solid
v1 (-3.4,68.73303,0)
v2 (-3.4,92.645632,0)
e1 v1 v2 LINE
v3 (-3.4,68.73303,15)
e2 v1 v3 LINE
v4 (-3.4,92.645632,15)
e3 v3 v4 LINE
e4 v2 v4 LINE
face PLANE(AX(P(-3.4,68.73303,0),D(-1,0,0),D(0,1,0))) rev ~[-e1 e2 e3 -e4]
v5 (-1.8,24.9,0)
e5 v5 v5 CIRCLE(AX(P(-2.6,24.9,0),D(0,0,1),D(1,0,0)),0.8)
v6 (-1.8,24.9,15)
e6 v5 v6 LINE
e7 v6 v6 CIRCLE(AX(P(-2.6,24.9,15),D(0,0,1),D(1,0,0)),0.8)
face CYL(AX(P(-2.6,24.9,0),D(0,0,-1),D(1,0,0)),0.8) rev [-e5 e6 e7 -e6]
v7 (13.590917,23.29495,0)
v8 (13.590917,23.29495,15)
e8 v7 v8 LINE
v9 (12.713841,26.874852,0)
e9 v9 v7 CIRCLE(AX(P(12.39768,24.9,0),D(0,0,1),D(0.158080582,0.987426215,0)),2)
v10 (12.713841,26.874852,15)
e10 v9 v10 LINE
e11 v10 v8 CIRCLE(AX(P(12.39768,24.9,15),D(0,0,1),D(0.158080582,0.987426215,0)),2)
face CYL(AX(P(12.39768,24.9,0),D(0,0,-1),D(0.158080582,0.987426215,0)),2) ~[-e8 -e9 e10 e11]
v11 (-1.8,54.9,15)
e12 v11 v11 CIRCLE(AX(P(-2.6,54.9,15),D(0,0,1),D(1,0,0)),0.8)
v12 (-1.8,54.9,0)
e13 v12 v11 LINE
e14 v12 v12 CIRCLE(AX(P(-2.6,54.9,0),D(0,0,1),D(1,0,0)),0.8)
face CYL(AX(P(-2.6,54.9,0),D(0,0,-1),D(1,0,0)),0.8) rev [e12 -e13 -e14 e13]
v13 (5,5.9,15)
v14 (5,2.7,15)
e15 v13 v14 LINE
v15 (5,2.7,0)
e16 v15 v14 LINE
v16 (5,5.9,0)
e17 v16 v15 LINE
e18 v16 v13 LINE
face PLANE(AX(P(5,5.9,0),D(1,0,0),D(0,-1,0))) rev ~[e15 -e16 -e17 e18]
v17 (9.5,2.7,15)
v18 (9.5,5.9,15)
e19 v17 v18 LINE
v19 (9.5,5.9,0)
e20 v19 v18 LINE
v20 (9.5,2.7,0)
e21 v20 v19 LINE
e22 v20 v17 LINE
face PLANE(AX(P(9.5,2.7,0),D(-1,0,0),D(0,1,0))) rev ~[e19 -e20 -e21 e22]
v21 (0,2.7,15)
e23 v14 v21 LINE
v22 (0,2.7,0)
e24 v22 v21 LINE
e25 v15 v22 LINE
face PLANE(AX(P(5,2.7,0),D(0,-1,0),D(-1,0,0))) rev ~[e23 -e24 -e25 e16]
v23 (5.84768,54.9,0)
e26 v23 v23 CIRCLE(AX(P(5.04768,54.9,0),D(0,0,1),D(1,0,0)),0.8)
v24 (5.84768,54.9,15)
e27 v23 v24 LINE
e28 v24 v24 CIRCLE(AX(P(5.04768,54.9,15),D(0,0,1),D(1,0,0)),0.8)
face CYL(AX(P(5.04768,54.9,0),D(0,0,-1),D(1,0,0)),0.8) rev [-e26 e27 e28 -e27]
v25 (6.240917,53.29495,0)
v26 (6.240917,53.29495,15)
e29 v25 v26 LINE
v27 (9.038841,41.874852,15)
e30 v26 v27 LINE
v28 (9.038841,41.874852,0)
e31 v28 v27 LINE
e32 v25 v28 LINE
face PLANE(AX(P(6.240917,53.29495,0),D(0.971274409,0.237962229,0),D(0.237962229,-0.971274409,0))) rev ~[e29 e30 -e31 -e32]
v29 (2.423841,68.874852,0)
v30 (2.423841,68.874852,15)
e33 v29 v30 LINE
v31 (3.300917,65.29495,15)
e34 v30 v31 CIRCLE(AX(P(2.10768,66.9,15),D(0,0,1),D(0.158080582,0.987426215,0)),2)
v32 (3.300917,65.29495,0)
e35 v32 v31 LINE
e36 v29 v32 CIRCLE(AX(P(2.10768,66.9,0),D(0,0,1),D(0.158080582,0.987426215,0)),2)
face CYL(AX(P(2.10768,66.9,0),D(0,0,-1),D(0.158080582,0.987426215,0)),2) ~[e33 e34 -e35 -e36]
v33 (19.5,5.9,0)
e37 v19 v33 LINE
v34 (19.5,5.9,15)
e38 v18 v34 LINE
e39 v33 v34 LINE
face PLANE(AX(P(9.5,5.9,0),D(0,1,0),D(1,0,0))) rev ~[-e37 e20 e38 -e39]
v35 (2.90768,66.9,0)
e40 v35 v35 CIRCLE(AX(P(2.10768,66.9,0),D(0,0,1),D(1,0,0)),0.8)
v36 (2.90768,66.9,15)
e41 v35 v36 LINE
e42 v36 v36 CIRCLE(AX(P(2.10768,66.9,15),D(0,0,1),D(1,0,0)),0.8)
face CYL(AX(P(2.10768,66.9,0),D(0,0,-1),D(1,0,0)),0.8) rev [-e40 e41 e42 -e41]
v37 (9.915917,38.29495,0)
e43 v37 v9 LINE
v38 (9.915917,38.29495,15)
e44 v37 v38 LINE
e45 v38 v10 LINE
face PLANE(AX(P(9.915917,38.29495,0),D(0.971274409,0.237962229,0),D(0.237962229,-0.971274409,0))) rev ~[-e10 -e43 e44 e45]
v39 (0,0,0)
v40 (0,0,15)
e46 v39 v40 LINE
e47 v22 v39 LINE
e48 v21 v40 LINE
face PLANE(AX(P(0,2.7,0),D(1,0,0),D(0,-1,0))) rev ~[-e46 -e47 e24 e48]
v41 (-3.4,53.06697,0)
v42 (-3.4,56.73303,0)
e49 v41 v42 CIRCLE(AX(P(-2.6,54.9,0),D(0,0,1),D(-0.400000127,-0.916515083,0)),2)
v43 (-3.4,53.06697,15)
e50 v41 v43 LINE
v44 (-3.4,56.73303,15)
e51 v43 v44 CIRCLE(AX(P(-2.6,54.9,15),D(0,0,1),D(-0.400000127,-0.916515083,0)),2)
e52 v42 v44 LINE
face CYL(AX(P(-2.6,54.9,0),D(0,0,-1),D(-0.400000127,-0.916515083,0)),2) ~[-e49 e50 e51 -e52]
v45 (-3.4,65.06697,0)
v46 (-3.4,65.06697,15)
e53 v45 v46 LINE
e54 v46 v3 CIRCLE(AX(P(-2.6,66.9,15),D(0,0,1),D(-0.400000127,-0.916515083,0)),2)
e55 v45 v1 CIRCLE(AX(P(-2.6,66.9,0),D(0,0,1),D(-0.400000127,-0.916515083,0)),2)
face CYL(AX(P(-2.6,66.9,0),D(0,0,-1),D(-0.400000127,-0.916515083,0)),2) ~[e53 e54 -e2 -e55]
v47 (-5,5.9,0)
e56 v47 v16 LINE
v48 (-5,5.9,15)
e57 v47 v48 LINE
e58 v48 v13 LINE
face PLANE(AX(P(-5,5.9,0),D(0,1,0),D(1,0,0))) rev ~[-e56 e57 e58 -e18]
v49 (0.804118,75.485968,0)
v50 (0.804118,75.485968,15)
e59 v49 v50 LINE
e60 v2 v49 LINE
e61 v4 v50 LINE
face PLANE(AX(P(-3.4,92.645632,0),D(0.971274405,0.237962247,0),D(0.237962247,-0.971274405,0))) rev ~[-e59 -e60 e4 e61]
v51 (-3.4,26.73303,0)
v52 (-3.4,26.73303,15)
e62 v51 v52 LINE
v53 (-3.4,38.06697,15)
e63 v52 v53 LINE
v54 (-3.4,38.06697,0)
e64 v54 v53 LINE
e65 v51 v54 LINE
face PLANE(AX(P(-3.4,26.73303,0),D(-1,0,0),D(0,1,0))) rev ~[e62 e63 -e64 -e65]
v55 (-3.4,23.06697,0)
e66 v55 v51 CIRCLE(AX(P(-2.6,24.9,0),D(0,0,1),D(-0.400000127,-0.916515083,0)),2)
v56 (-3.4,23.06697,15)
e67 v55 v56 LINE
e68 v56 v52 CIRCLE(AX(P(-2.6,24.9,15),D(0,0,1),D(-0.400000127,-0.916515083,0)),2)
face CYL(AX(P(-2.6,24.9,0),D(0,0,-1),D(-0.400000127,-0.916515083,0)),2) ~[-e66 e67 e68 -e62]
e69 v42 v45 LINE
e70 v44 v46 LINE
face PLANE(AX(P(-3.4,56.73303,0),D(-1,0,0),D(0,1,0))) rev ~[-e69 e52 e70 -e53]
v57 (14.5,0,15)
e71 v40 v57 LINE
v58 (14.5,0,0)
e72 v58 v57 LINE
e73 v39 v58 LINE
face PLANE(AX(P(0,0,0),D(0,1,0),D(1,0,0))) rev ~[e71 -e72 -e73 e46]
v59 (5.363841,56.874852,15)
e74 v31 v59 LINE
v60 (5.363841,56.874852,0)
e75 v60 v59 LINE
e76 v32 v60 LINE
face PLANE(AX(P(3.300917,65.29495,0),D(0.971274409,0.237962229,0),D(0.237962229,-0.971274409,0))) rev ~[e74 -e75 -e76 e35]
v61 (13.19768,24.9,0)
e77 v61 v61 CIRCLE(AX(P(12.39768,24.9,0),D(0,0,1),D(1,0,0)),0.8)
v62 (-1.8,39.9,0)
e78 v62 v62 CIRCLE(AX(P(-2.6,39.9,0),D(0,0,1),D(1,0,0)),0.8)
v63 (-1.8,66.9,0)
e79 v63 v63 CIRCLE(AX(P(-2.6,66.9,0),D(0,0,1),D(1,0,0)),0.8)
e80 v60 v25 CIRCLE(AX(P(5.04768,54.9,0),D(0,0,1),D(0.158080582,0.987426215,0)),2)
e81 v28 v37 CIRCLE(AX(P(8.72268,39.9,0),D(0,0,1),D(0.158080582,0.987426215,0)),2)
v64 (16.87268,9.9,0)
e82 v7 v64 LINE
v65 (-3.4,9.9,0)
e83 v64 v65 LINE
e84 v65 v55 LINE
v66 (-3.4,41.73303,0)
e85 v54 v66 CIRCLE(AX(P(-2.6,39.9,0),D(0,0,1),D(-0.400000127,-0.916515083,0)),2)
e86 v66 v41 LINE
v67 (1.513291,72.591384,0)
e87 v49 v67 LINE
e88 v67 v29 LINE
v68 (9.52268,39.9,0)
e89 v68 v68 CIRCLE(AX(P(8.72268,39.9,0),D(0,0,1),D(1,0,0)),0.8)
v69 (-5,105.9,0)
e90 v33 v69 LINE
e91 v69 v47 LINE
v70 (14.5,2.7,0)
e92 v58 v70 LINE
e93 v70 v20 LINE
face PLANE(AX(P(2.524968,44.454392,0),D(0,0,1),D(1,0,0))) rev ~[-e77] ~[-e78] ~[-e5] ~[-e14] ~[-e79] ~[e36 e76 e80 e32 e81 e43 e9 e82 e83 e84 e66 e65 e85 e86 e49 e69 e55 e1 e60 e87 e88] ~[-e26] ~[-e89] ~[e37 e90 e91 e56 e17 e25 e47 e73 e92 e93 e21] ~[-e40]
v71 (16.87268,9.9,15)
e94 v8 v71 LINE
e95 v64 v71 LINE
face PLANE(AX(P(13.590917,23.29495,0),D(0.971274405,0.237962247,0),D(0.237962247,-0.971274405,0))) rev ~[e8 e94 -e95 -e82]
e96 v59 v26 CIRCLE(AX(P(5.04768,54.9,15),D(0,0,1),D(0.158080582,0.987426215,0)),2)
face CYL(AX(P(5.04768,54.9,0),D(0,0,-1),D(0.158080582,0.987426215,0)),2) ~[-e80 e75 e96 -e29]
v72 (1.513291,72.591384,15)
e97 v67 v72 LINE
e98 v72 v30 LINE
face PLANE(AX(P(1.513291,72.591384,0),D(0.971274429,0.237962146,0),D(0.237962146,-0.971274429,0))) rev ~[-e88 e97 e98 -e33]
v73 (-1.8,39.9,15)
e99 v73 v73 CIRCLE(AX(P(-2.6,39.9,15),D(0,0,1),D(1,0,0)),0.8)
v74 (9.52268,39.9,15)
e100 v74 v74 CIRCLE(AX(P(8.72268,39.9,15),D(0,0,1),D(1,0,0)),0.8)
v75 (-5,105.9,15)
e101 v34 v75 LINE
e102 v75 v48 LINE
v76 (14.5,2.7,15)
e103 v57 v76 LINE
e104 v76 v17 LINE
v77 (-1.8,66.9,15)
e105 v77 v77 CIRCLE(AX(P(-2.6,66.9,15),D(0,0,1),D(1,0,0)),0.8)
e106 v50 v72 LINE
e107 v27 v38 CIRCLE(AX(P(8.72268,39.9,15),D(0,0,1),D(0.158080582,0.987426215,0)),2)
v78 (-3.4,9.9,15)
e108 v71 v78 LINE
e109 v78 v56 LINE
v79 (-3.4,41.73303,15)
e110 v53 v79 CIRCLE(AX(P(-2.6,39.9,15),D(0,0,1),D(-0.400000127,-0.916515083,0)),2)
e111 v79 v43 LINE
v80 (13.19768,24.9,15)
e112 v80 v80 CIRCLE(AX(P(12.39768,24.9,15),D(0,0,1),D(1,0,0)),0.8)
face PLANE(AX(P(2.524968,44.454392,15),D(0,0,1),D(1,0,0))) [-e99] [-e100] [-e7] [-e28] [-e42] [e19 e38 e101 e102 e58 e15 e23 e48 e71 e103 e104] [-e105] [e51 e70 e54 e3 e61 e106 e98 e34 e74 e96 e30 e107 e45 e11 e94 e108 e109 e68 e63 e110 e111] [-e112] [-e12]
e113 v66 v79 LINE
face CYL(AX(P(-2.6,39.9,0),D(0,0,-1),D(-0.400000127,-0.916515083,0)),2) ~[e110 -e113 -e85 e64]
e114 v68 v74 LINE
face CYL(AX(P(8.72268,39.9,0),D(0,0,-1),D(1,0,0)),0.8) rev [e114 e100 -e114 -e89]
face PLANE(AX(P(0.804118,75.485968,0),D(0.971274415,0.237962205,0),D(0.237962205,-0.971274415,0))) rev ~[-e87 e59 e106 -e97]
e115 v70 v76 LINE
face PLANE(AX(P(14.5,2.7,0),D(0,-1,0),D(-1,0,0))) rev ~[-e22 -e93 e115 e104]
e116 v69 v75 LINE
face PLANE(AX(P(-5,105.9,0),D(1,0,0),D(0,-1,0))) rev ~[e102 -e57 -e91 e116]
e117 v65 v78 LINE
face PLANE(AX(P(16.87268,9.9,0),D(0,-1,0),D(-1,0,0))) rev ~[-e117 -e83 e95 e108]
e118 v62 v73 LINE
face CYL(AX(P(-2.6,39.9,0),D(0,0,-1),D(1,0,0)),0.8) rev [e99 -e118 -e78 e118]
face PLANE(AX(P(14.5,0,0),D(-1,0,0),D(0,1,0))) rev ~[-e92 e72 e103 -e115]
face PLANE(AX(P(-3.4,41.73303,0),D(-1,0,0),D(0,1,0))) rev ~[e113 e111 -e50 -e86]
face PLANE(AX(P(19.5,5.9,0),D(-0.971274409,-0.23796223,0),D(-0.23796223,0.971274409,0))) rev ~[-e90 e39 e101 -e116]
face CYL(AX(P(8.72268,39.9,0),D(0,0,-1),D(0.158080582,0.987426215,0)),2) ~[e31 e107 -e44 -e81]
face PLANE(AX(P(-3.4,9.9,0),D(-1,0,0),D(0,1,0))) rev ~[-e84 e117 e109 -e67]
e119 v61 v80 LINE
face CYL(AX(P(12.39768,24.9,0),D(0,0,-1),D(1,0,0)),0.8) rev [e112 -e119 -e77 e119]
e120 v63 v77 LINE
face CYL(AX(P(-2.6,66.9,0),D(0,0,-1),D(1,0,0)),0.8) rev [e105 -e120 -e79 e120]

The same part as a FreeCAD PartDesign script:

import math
import FreeCAD as App
import Part
import Sketcher
from FreeCAD import Vector


def add_polygon(sketch, points):
    """Adds a closed chain of lines whose ends are joined by coincident constraints."""
    first, n = sketch.GeometryCount, len(points)
    for a, b in zip(points, points[1:] + points[:1]):
        sketch.addGeometry(Part.LineSegment(App.Vector(*a, 0), App.Vector(*b, 0)), False)
    for i in range(n):
        sketch.addConstraint(Sketcher.Constraint("Coincident", first + i, 2, first + (i + 1) % n, 1))

doc = App.newDocument("Part")
body = doc.addObject("PartDesign::Body", "Body")

# Sketch on XY plane
sketch1 = body.newObject("Sketcher::SketchObject", "Sketch")
sketch1.AttachmentSupport = (doc.getObject("XY_Plane"), [""])
sketch1.MapMode = "FlatFace"
add_polygon(sketch1, [(0, 2.7), (0, 0), (14.5, 0), (14.5, 2.7), (9.5, 2.7), (9.5, 5.9), (19.5, 5.9), (-5, 105.9), (-5, 5.9), (5, 5.9), (5, 2.7)])  # lines 0-10
sketch1.addGeometry(Part.Circle(Vector(-2.6, 24.9, 0), Vector(0, 0, 1), 0.8), False)  # 11
sketch1.addGeometry(Part.Circle(Vector(-2.6, 39.9, 0), Vector(0, 0, 1), 0.8), False)  # 12
sketch1.addGeometry(Part.Circle(Vector(12.4, 24.9, 0), Vector(0, 0, 1), 0.8), False)  # 13
sketch1.addGeometry(Part.Circle(Vector(8.7, 39.9, 0), Vector(0, 0, 1), 0.8), False)  # 14
sketch1.addGeometry(Part.LineSegment(Vector(13.6, 23.3, 0), Vector(16.9, 9.9, 0)), False)  # 15
sketch1.addGeometry(Part.LineSegment(Vector(16.9, 9.9, 0), Vector(-3.4, 9.9, 0)), False)  # 16
sketch1.addGeometry(Part.LineSegment(Vector(-3.4, 9.9, 0), Vector(-3.4, 23.1, 0)), False)  # 17
sketch1.addGeometry(Part.ArcOfCircle(Part.Circle(Vector(-2.6, 24.9, 0), Vector(0, 0, 1), 2), math.radians(-114), math.radians(114)), False)  # 18
sketch1.addGeometry(Part.LineSegment(Vector(-3.4, 26.7, 0), Vector(-3.4, 38.1, 0)), False)  # 19
sketch1.addGeometry(Part.ArcOfCircle(Part.Circle(Vector(-2.6, 39.9, 0), Vector(0, 0, 1), 2), math.radians(-114), math.radians(114)), False)  # 20
sketch1.addGeometry(Part.LineSegment(Vector(-3.4, 41.7, 0), Vector(-3.4, 53.1, 0)), False)  # 21
sketch1.addGeometry(Part.ArcOfCircle(Part.Circle(Vector(-2.6, 54.9, 0), Vector(0, 0, 1), 2), math.radians(-114), math.radians(114)), False)  # 22
sketch1.addGeometry(Part.LineSegment(Vector(-3.4, 56.7, 0), Vector(-3.4, 65.1, 0)), False)  # 23
sketch1.addGeometry(Part.ArcOfCircle(Part.Circle(Vector(-2.6, 66.9, 0), Vector(0, 0, 1), 2), math.radians(-114), math.radians(114)), False)  # 24
sketch1.addGeometry(Part.LineSegment(Vector(-3.4, 68.7, 0), Vector(-3.4, 92.6, 0)), False)  # 25
sketch1.addGeometry(Part.LineSegment(Vector(-3.4, 92.6, 0), Vector(0.8, 75.5, 0)), False)  # 26
sketch1.addGeometry(Part.LineSegment(Vector(0.8, 75.5, 0), Vector(1.5, 72.6, 0)), False)  # 27
sketch1.addGeometry(Part.LineSegment(Vector(1.5, 72.6, 0), Vector(2.4, 68.9, 0)), False)  # 28
sketch1.addGeometry(Part.ArcOfCircle(Part.Circle(Vector(2.1, 66.9, 0), Vector(0, 0, 1), 2), math.radians(81), math.radians(307)), False)  # 29
sketch1.addGeometry(Part.LineSegment(Vector(3.3, 65.3, 0), Vector(5.4, 56.9, 0)), False)  # 30
sketch1.addGeometry(Part.ArcOfCircle(Part.Circle(Vector(5, 54.9, 0), Vector(0, 0, 1), 2), math.radians(81), math.radians(307)), False)  # 31
sketch1.addGeometry(Part.LineSegment(Vector(6.2, 53.3, 0), Vector(9, 41.9, 0)), False)  # 32
sketch1.addGeometry(Part.ArcOfCircle(Part.Circle(Vector(8.7, 39.9, 0), Vector(0, 0, 1), 2), math.radians(81), math.radians(307)), False)  # 33
sketch1.addGeometry(Part.LineSegment(Vector(9.9, 38.3, 0), Vector(12.7, 26.9, 0)), False)  # 34
sketch1.addGeometry(Part.ArcOfCircle(Part.Circle(Vector(12.4, 24.9, 0), Vector(0, 0, 1), 2), math.radians(81), math.radians(307)), False)  # 35
sketch1.addGeometry(Part.Circle(Vector(-2.6, 54.9, 0), Vector(0, 0, 1), 0.8), False)  # 36
sketch1.addGeometry(Part.Circle(Vector(-2.6, 66.9, 0), Vector(0, 0, 1), 0.8), False)  # 37
sketch1.addGeometry(Part.Circle(Vector(5, 54.9, 0), Vector(0, 0, 1), 0.8), False)  # 38
sketch1.addGeometry(Part.Circle(Vector(2.1, 66.9, 0), Vector(0, 0, 1), 0.8), False)  # 39
sketch1.addConstraint([
    Sketcher.Constraint("Coincident", 15, 2, 16, 1),
    Sketcher.Constraint("Coincident", 16, 2, 17, 1),
    Sketcher.Constraint("Coincident", 17, 2, 18, 1),
    Sketcher.Constraint("Coincident", 18, 2, 19, 1),
    Sketcher.Constraint("Coincident", 19, 2, 20, 1),
    Sketcher.Constraint("Coincident", 20, 2, 21, 1),
    Sketcher.Constraint("Coincident", 21, 2, 22, 1),
    Sketcher.Constraint("Coincident", 22, 2, 23, 1),
    Sketcher.Constraint("Coincident", 23, 2, 24, 1),
    Sketcher.Constraint("Coincident", 24, 2, 25, 1),
    Sketcher.Constraint("Coincident", 25, 2, 26, 1),
    Sketcher.Constraint("Coincident", 26, 2, 27, 1),
    Sketcher.Constraint("Coincident", 27, 2, 28, 1),
    Sketcher.Constraint("Coincident", 28, 2, 29, 1),
    Sketcher.Constraint("Coincident", 29, 2, 30, 1),
    Sketcher.Constraint("Coincident", 30, 2, 31, 1),
    Sketcher.Constraint("Coincident", 31, 2, 32, 1),
    Sketcher.Constraint("Coincident", 32, 2, 33, 1),
    Sketcher.Constraint("Coincident", 33, 2, 34, 1),
    Sketcher.Constraint("Coincident", 34, 2, 35, 1),
    Sketcher.Constraint("Coincident", 35, 2, 15, 1),
    Sketcher.Constraint("Vertical", 0),
    Sketcher.Constraint("Horizontal", 1),
    Sketcher.Constraint("Vertical", 2),
    Sketcher.Constraint("Horizontal", 3),
    Sketcher.Constraint("Vertical", 4),
    Sketcher.Constraint("Horizontal", 5),
    Sketcher.Constraint("Vertical", 7),
    Sketcher.Constraint("Horizontal", 8),
    Sketcher.Constraint("Vertical", 9),
    Sketcher.Constraint("Horizontal", 10),
    Sketcher.Constraint("Horizontal", 16),
    Sketcher.Constraint("Vertical", 17),
    Sketcher.Constraint("Vertical", 19),
    Sketcher.Constraint("Vertical", 21),
    Sketcher.Constraint("Vertical", 23),
    Sketcher.Constraint("Vertical", 25),
    Sketcher.Constraint("Coincident", 0, 2, -1, 1),
    Sketcher.Constraint("Coincident", 18, 3, 11, 3),
    Sketcher.Constraint("Coincident", 20, 3, 12, 3),
    Sketcher.Constraint("Coincident", 33, 3, 14, 3),
    Sketcher.Constraint("Coincident", 35, 3, 13, 3),
    Sketcher.Constraint("Coincident", 36, 3, 22, 3),
    Sketcher.Constraint("Coincident", 37, 3, 24, 3),
    Sketcher.Constraint("Coincident", 38, 3, 31, 3),
    Sketcher.Constraint("Coincident", 39, 3, 29, 3),
    Sketcher.Constraint("Equal", 11, 12),
    Sketcher.Constraint("Equal", 12, 13),
    Sketcher.Constraint("Equal", 13, 14),
    Sketcher.Constraint("Equal", 18, 20),
    Sketcher.Constraint("Equal", 20, 22),
    Sketcher.Constraint("Equal", 22, 24),
    Sketcher.Constraint("Equal", 24, 29),
    Sketcher.Constraint("Equal", 29, 31),
    Sketcher.Constraint("Equal", 31, 33),
    Sketcher.Constraint("Equal", 33, 35),
    Sketcher.Constraint("Equal", 14, 36),
    Sketcher.Constraint("Equal", 36, 37),
    Sketcher.Constraint("Equal", 37, 38),
    Sketcher.Constraint("Equal", 38, 39),
    Sketcher.Constraint("Parallel", 6, 15),
    Sketcher.Constraint("Parallel", 15, 26),
    Sketcher.Constraint("Parallel", 26, 27),
    Sketcher.Constraint("Parallel", 27, 28),
    Sketcher.Constraint("Parallel", 28, 30),
    Sketcher.Constraint("Parallel", 30, 32),
    Sketcher.Constraint("Parallel", 32, 34),
    Sketcher.Constraint("Horizontal", 11, 3, 13, 3),
    Sketcher.Constraint("Horizontal", 12, 3, 14, 3),
    Sketcher.Constraint("Horizontal", 24, 3, 29, 3),
    Sketcher.Constraint("Horizontal", 22, 3, 31, 3),
    Sketcher.Constraint("Horizontal", 5, 2, 7, 2),
    Sketcher.Constraint("Horizontal", 3, 2, 9, 2),
    Sketcher.Constraint("Vertical", 11, 3, 12, 3),
    Sketcher.Constraint("Vertical", 20, 3, 22, 3),
    Sketcher.Constraint("Vertical", 22, 3, 24, 3),
    Sketcher.Constraint("Vertical", 17, 2, 18, 2),
    Sketcher.Constraint("Vertical", 19, 2, 20, 2),
    Sketcher.Constraint("Vertical", 21, 2, 22, 2),
    Sketcher.Constraint("Vertical", 23, 2, 24, 2),
    Sketcher.Constraint("Equal", 5, 8),
    Sketcher.Constraint("Equal", 3, 10),
    Sketcher.Constraint("Equal", 19, 21),
    Sketcher.Constraint("Equal", 32, 34),
    Sketcher.Constraint("Radius", 18, 2.0),
    Sketcher.Constraint("Diameter", 11, 1.6),
    Sketcher.Constraint("DistanceX", 3, 2, 3, 1, 5.0),
    Sketcher.Constraint("DistanceX", 5, 1, 5, 2, 10.0),
    Sketcher.Constraint("DistanceY", 7, 2, 7, 1, 100.0),
    Sketcher.Constraint("DistanceX", 1, 1, 1, 2, 14.5),
    Sketcher.Constraint("DistanceY", 0, 2, 0, 1, 2.7),
    Sketcher.Constraint("DistanceY", 4, 1, 4, 2, 3.2),
    Sketcher.Constraint("DistanceY", 11, 3, 12, 3, 15.0),
    Sketcher.Constraint("DistanceY", 22, 3, 24, 3, 12.0),
    Sketcher.Constraint("DistanceY", 4, 2, 35, 3, 19.0),
    Sketcher.Constraint("DistanceY", 5, 2, 15, 2, 4.0),
    Sketcher.Constraint("DistanceY", 35, 2, 33, 2, 15.0),
    Sketcher.Constraint("DistanceX", 11, 3, -1, 1, 2.6),
    Sketcher.Constraint("DistanceX", 16, 2, -1, 1, 3.4),
    Sketcher.Constraint("DistanceX", 29, 3, 31, 3, 2.94),
    Sketcher.Constraint("DistanceX", 14, 3, 13, 3, 3.675),
    Sketcher.Constraint("DistanceX", 29, 3, 14, 3, 6.615),
    Sketcher.Constraint("DistanceX", 16, 2, 16, 1, 20.27268),
    Sketcher.Constraint("Distance", 27, 2.980192),
    Sketcher.Constraint("Distance", 28, 3.826449),
    Sketcher.Constraint("Distance", 32, 11.757849),
    Sketcher.Constraint("DistanceY", 25, 1, 25, 2, 23.912602),
    Sketcher.Constraint("DistanceY", -1, 1, 29, 2, 65.29495),
])
pad1 = body.newObject("PartDesign::Pad", "Pad")
pad1.Profile = sketch1
pad1.Length = 15

doc.recompute()
